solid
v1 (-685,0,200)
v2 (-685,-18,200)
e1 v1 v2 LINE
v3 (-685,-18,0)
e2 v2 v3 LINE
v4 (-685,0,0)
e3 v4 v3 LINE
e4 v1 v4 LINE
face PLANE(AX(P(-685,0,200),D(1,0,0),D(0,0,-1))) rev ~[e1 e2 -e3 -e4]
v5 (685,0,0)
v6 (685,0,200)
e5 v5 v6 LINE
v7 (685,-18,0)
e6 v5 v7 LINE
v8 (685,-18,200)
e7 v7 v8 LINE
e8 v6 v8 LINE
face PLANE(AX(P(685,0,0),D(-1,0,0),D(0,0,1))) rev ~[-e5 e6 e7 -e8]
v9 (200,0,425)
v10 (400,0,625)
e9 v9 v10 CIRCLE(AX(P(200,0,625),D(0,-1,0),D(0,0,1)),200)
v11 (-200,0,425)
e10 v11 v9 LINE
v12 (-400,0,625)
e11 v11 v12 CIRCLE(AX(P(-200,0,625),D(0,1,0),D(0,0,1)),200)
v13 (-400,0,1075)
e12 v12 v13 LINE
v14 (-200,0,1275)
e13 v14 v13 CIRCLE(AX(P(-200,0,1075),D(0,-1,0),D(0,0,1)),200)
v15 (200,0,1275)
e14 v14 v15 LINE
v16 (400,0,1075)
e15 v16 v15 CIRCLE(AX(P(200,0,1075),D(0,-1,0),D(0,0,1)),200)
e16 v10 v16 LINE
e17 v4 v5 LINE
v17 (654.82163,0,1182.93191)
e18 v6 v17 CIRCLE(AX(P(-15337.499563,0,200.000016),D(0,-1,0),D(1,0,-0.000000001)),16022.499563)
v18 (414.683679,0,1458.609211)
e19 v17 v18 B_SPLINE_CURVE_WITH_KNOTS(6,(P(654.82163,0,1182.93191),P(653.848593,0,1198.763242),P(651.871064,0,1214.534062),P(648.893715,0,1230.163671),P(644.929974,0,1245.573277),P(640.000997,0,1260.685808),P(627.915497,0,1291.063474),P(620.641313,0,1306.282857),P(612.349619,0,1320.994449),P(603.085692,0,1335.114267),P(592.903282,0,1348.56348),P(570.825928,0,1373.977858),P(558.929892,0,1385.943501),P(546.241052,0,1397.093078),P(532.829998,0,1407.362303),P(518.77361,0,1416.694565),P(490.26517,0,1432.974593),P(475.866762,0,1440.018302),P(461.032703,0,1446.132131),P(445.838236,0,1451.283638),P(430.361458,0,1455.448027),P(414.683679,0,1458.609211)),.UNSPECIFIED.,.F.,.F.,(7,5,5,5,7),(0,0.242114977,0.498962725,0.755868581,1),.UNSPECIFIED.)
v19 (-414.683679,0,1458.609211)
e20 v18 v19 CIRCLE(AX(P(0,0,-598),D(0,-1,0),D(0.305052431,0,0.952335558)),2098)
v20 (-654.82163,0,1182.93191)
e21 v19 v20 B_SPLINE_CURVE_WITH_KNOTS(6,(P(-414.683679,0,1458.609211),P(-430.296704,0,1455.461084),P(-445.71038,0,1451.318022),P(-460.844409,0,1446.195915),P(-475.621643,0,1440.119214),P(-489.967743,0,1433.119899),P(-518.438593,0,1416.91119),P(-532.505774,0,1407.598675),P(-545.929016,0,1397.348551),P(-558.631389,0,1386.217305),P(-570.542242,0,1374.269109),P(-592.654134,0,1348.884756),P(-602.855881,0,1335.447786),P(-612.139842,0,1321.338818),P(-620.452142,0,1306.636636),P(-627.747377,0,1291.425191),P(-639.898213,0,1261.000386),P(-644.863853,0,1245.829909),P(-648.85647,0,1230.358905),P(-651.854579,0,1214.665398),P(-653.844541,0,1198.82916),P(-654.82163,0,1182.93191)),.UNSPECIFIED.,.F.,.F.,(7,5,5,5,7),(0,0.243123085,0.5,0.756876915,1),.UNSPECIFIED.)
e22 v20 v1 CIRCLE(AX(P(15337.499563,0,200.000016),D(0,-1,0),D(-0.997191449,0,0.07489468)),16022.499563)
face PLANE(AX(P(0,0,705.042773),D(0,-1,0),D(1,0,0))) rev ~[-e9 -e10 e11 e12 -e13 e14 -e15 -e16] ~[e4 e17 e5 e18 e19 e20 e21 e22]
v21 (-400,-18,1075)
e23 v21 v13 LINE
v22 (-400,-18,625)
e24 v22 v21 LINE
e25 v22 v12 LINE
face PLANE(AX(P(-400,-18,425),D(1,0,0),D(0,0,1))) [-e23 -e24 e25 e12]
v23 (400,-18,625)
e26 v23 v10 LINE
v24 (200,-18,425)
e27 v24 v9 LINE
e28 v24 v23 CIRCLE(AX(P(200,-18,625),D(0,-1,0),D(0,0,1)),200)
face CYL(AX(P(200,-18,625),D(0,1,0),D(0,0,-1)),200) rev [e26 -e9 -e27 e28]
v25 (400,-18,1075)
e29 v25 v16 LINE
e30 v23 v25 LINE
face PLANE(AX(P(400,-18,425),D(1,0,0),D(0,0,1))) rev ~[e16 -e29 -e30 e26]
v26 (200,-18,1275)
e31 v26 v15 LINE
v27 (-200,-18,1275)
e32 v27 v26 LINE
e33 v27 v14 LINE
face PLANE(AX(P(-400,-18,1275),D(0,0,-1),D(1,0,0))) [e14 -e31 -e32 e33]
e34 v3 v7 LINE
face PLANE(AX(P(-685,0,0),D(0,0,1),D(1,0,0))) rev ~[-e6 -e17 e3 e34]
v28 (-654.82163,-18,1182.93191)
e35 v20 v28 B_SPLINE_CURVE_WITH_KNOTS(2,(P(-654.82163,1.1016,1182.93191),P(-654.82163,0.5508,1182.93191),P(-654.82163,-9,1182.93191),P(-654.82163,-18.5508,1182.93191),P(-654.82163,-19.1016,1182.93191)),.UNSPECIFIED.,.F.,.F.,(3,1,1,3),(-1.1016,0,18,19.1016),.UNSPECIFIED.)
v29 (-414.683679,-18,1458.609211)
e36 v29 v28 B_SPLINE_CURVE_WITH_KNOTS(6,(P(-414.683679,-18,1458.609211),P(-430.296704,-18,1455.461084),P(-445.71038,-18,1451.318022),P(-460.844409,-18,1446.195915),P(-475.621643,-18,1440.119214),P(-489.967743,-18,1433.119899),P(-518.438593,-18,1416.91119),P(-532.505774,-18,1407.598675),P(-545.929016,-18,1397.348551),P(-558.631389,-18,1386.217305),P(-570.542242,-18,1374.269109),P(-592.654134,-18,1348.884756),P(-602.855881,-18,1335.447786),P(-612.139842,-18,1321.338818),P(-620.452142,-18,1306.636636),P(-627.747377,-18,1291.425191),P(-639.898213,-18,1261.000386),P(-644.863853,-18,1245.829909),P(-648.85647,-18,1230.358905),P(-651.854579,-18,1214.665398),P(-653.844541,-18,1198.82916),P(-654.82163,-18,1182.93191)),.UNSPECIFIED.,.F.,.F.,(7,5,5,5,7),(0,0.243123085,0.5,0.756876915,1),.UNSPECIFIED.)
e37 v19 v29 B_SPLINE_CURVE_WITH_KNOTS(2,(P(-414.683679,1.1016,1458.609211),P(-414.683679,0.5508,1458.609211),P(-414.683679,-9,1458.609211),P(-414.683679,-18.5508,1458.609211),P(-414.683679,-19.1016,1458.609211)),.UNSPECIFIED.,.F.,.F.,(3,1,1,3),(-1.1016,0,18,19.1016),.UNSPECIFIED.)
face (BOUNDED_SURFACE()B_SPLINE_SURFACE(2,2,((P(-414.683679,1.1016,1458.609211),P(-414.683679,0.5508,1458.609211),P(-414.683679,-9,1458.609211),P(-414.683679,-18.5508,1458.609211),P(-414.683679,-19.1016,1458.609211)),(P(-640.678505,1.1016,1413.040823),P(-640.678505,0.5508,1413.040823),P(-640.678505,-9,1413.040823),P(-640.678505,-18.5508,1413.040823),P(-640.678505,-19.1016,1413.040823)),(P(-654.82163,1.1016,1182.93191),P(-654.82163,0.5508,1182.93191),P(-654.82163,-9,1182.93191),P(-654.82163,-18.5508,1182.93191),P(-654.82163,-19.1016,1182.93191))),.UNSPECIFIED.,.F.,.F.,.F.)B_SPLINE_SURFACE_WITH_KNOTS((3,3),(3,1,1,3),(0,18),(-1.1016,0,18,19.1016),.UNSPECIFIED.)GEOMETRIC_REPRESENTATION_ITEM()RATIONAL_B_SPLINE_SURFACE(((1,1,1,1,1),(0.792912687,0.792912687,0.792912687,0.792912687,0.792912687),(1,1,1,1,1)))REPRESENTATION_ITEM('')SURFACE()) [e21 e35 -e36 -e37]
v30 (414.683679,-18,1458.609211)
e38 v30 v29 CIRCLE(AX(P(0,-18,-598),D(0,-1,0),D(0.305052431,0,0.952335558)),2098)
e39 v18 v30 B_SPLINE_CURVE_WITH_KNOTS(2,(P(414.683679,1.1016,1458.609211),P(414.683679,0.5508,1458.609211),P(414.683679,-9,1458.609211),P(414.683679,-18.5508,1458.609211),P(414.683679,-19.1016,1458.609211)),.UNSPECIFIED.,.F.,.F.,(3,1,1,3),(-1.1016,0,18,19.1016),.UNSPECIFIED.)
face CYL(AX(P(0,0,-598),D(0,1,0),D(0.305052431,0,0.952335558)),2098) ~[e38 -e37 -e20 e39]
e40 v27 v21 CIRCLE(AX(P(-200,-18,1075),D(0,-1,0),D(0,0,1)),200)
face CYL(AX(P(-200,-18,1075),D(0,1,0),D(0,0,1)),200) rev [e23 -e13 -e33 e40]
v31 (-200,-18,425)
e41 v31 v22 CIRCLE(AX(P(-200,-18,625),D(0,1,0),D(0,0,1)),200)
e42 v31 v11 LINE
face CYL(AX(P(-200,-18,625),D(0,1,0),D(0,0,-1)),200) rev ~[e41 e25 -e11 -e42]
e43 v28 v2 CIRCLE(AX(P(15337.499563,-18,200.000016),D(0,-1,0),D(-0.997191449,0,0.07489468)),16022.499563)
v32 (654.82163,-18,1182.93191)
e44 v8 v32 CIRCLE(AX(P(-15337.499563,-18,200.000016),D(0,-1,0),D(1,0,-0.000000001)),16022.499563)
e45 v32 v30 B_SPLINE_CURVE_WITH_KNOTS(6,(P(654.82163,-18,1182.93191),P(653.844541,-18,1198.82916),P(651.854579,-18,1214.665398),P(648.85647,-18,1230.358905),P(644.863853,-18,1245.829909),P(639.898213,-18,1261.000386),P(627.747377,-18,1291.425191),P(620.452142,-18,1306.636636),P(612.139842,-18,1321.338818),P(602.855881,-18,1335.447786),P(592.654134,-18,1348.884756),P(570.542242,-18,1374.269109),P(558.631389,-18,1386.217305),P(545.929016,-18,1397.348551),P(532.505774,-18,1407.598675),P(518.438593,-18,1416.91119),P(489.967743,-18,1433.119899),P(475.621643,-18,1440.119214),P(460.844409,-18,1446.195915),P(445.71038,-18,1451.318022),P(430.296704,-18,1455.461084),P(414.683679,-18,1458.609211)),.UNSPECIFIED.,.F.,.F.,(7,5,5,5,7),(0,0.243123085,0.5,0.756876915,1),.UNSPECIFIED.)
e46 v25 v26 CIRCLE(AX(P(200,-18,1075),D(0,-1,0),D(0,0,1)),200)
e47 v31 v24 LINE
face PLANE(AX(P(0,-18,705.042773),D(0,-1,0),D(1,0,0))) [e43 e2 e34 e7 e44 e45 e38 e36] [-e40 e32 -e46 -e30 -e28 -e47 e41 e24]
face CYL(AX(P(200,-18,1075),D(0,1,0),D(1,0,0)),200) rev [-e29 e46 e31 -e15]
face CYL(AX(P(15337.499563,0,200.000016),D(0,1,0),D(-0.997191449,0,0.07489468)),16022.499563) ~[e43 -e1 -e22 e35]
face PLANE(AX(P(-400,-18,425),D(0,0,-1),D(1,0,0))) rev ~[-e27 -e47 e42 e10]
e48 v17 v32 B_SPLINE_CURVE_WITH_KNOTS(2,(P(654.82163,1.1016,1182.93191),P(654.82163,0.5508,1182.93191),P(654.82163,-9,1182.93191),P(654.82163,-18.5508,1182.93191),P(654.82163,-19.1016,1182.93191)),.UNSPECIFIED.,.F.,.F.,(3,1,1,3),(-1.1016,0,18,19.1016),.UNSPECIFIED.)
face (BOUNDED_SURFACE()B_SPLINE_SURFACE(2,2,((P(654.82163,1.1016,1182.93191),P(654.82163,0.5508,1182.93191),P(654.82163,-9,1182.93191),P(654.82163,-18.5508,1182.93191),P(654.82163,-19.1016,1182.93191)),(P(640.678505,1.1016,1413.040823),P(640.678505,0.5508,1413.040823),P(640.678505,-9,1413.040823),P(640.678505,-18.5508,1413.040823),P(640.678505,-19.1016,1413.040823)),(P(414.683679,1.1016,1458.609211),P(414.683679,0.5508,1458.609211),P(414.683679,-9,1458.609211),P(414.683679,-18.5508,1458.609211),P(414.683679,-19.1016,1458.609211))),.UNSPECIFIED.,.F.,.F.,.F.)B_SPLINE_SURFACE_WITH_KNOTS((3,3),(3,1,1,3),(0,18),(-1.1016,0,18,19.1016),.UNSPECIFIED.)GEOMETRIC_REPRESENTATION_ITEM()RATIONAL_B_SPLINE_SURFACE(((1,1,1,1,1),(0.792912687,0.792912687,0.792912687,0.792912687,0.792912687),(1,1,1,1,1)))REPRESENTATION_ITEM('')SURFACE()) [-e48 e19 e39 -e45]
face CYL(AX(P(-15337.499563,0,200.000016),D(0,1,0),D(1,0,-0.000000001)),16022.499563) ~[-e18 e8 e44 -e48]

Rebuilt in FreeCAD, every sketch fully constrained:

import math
import FreeCAD as App
import Part
import Sketcher
Q = App.Units.Quantity


def edges_at(feature, points):
    """Names of the edges that pass closest to the given points."""
    edges = feature.Shape.Edges
    near = lambda p: min(range(len(edges)), key=lambda i: edges[i].distToShape(Part.Vertex(*p))[0])
    return sorted({f"Edge{near(p) + 1}" for p in points})

doc = App.newDocument("Part")
body = doc.addObject("PartDesign::Body", "Body")

# Sketch on XZ plane
sketch1 = body.newObject("Sketcher::SketchObject", "Sketch")
sketch1.AttachmentSupport = (doc.getObject("XZ_Plane"), [""])
sketch1.MapMode = "FlatFace"
sketch1.addGeometry([
    Part.LineSegment(App.Vector(-685, 200, 0), App.Vector(-685, 0, 0)),  # 0
    Part.LineSegment(App.Vector(-685, 0, 0), App.Vector(685, 0, 0)),  # 1
    Part.LineSegment(App.Vector(685, 0, 0), App.Vector(685, 200, 0)),  # 2
    Part.ArcOfCircle(Part.Circle(App.Vector(-15337, 200, 0), App.Vector(0, 0, 1), 16022), math.radians(0), math.radians(4.3)),  # 3
    Part.ArcOfCircle(Part.Circle(App.Vector(0, -598, 0), App.Vector(0, 0, 1), 2098), math.radians(72), math.radians(108)),  # 4
    Part.ArcOfCircle(Part.Circle(App.Vector(15337, 200, 0), App.Vector(0, 0, 1), 16022), math.radians(175.7), math.radians(180)),  # 5
], False)
sketch1.addConstraint([
    Sketcher.Constraint("Coincident", 0, 2, 1, 1),
    Sketcher.Constraint("Coincident", 1, 2, 2, 1),
    Sketcher.Constraint("Tangent", 2, 2, 3, 1),
    Sketcher.Constraint("Coincident", 3, 2, 4, 1),
    Sketcher.Constraint("Coincident", 4, 2, 5, 1),
    Sketcher.Constraint("Tangent", 5, 2, 0, 1),
    Sketcher.Constraint("Vertical", 0),
    Sketcher.Constraint("Horizontal", 1),
    Sketcher.Constraint("Vertical", 2),
    Sketcher.Constraint("Equal", 3, 5),
    Sketcher.Constraint("Symmetric", 0, 2, 1, 2, -1, 1),
    Sketcher.Constraint("PointOnObject", 4, 3, -2),
    Sketcher.Constraint("Horizontal", 3, 3, 5, 3),
    Sketcher.Constraint("Radius", 4, Q("2098 mm")),
    Sketcher.Constraint("DistanceX", 1, 1, 1, 2, Q("1370 mm")),
    Sketcher.Constraint("DistanceY", 0, 2, 0, 1, Q("200 mm")),
    Sketcher.Constraint("DistanceY", 4, 3, -1, 1, Q("598 mm")),
    Sketcher.Constraint("Radius", 3, Q("16022.499563 mm")),
])
pad1 = body.newObject("PartDesign::Pad", "Pad")
pad1.Profile = sketch1
pad1.Length = 18
doc.recompute()

fillet = body.newObject("PartDesign::Fillet", "Fillet")
fillet.Base = (pad1, edges_at(pad1, [(-640, -9, 1400), (640, -9, 1400)]))
fillet.Radius = 300

# Sketch on XZ plane
sketch2 = body.newObject("Sketcher::SketchObject", "Sketch001")
sketch2.AttachmentSupport = (doc.getObject("XZ_Plane"), [""])
sketch2.MapMode = "FlatFace"
sketch2.AttachmentOffset = App.Placement(App.Vector(0, 0, 18), App.Rotation())
sketch2.addGeometry([
    Part.LineSegment(App.Vector(-400, 1275, 0), App.Vector(-400, 425, 0)),
    Part.LineSegment(App.Vector(-400, 425, 0), App.Vector(400, 425, 0)),
    Part.LineSegment(App.Vector(400, 425, 0), App.Vector(400, 1275, 0)),
    Part.LineSegment(App.Vector(400, 1275, 0), App.Vector(-400, 1275, 0)),
], False)
sketch2.addConstraint([
    Sketcher.Constraint("Coincident", 0, 2, 1, 1),
    Sketcher.Constraint("Coincident", 1, 2, 2, 1),
    Sketcher.Constraint("Coincident", 2, 2, 3, 1),
    Sketcher.Constraint("Coincident", 3, 2, 0, 1),
    Sketcher.Constraint("Vertical", 0),
    Sketcher.Constraint("Horizontal", 1),
    Sketcher.Constraint("Vertical", 2),
    Sketcher.Constraint("Horizontal", 3),
    Sketcher.Constraint("DistanceX", 1, 1, 1, 2, Q("800 mm")),
    Sketcher.Constraint("DistanceY", 0, 2, 0, 1, Q("850 mm")),
    Sketcher.Constraint("DistanceX", 0, 2, -1, 1, Q("400 mm")),
    Sketcher.Constraint("DistanceY", -1, 1, 0, 2, Q("425 mm")),
])
pocket1 = body.newObject("PartDesign::Pocket", "Pocket")
pocket1.Profile = sketch2
pocket1.Type = "ThroughAll"
doc.recompute()

fillet2 = body.newObject("PartDesign::Fillet", "Fillet001")
fillet2.Base = (pocket1, edges_at(pocket1, [
    (-400, -9, 425),
    (-400, -9, 1275),
    (400, -9, 425),
    (400, -9, 1275),
]))
fillet2.Radius = 200

doc.recompute()
